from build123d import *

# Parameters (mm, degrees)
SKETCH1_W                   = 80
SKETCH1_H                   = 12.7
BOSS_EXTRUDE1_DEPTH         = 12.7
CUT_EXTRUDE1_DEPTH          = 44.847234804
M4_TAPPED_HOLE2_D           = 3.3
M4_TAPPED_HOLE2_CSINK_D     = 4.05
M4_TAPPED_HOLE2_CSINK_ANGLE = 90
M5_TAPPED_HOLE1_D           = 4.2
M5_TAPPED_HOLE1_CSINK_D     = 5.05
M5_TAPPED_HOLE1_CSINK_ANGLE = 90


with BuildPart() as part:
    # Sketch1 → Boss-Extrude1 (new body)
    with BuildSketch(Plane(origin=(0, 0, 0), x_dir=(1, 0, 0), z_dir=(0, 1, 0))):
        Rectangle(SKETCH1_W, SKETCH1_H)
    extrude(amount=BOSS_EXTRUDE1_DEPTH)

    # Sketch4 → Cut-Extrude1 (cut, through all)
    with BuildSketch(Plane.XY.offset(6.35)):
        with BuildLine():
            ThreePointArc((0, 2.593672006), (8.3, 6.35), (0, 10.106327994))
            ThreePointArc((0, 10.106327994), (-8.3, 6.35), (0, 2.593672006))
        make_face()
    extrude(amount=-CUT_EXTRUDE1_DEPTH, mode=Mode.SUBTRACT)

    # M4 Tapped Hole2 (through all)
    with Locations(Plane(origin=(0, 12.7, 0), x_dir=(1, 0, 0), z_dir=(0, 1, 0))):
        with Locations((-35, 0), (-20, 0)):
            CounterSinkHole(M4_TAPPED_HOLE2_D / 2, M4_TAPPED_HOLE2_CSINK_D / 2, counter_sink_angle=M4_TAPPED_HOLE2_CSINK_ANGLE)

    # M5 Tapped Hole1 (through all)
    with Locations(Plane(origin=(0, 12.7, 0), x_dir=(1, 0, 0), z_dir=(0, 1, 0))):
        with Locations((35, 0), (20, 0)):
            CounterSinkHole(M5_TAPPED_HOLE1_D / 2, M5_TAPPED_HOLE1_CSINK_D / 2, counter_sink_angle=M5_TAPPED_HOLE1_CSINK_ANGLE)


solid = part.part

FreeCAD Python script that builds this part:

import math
import FreeCAD as App
import Part
import Sketcher

V = App.Vector

doc = App.newDocument("Part")
body = doc.addObject("PartDesign::Body", "Body")

# Sketch on XZ plane
sketch1 = body.newObject("Sketcher::SketchObject", "Sketch")
sketch1.AttachmentSupport = (doc.getObject("XZ_Plane"), [""])
sketch1.MapMode = "FlatFace"
sketch1.addGeometry(Part.LineSegment(V(-40, -6, 0), V(-40, 6, 0)), False)
sketch1.addGeometry(Part.LineSegment(V(-40, 6, 0), V(40, 6, 0)), False)
sketch1.addGeometry(Part.LineSegment(V(40, 6, 0), V(40, -6, 0)), False)
sketch1.addGeometry(Part.LineSegment(V(40, -6, 0), V(-40, -6, 0)), False)
sketch1.addConstraint(Sketcher.Constraint("Coincident", 0, 2, 1, 1))
sketch1.addConstraint(Sketcher.Constraint("Coincident", 1, 2, 2, 1))
sketch1.addConstraint(Sketcher.Constraint("Coincident", 2, 2, 3, 1))
sketch1.addConstraint(Sketcher.Constraint("Coincident", 3, 2, 0, 1))
sketch1.addConstraint(Sketcher.Constraint("Vertical", 0))
sketch1.addConstraint(Sketcher.Constraint("Horizontal", 1))
sketch1.addConstraint(Sketcher.Constraint("Vertical", 2))
sketch1.addConstraint(Sketcher.Constraint("Horizontal", 3))
sketch1.addConstraint(Sketcher.Constraint("Symmetric", 0, 2, 2, 2, -1, 1))
sketch1.addConstraint(Sketcher.Constraint("DistanceX", 1, 1, 1, 2, 80.0))
sketch1.addConstraint(Sketcher.Constraint("DistanceY", 0, 1, 0, 2, 12.7))
pad1 = body.newObject("PartDesign::Pad", "Pad")
pad1.Profile = sketch1
pad1.Length = 12.7
pad1.Reversed = True

# Sketch on XY plane
sketch2 = body.newObject("Sketcher::SketchObject", "Sketch001")
sketch2.AttachmentSupport = (doc.getObject("XY_Plane"), [""])
sketch2.MapMode = "FlatFace"
sketch2.AttachmentOffset = App.Placement(V(0, 0, 6.35), App.Rotation())
sketch2.addGeometry(Part.ArcOfCircle(Part.Circle(V(3, 6, 0), V(0, 0, 1), 5), math.radians(-131), math.radians(131)), False)
sketch2.addGeometry(Part.ArcOfCircle(Part.Circle(V(-3, 6, 0), V(0, 0, 1), 5), math.radians(49), math.radians(311)), False)
sketch2.addConstraint(Sketcher.Constraint("Coincident", 0, 1, 1, 2))
sketch2.addConstraint(Sketcher.Constraint("Coincident", 1, 1, 0, 2))
sketch2.addConstraint(Sketcher.Constraint("Equal", 0, 1))
sketch2.addConstraint(Sketcher.Constraint("Symmetric", 0, 3, 1, 3, -2))
sketch2.addConstraint(Sketcher.Constraint("Radius", 0, 5.0))
sketch2.addConstraint(Sketcher.Constraint("DistanceX", -1, 1, 0, 3, 3.3))
sketch2.addConstraint(Sketcher.Constraint("DistanceY", -1, 1, 0, 3, 6.35))
pocket1 = body.newObject("PartDesign::Pocket", "Pocket")
pocket1.Profile = sketch2
pocket1.Type = "ThroughAll"

# Sketch on XZ plane
sketch3 = body.newObject("Sketcher::SketchObject", "Sketch002")
sketch3.AttachmentSupport = (doc.getObject("XZ_Plane"), [""])
sketch3.MapMode = "FlatFace"
sketch3.AttachmentOffset = App.Placement(V(0, 0, -12.7), App.Rotation())
sketch3.addGeometry(Part.Circle(V(-35, 0, 0), V(0, 0, 1), 1.6), False)
sketch3.addGeometry(Part.Circle(V(-20, 0, 0), V(0, 0, 1), 1.6), False)
sketch3.addConstraint(Sketcher.Constraint("Equal", 0, 1))
sketch3.addConstraint(Sketcher.Constraint("PointOnObject", 0, 3, -1))
sketch3.addConstraint(Sketcher.Constraint("PointOnObject", 1, 3, -1))
sketch3.addConstraint(Sketcher.Constraint("Diameter", 0, 3.3))
sketch3.addConstraint(Sketcher.Constraint("DistanceX", 0, 3, -1, 1, 35.0))
sketch3.addConstraint(Sketcher.Constraint("DistanceX", 1, 3, -1, 1, 20.0))
doc.recompute()
hole = body.newObject("PartDesign::Hole", "Hole")
hole.Profile = sketch3
hole.ThreadType = "None"
hole.Diameter = 3.3
hole.DepthType = "ThroughAll"
hole.HoleCutType = "Countersink"
hole.HoleCutDiameter = 4.05
hole.HoleCutCountersinkAngle = 90
hole.Reversed = True

# Sketch on XZ plane
sketch4 = body.newObject("Sketcher::SketchObject", "Sketch003")
sketch4.AttachmentSupport = (doc.getObject("XZ_Plane"), [""])
sketch4.MapMode = "FlatFace"
sketch4.AttachmentOffset = App.Placement(V(0, 0, -12.7), App.Rotation())
sketch4.addGeometry(Part.Circle(V(35, 0, 0), V(0, 0, 1), 2.1), False)
sketch4.addGeometry(Part.Circle(V(20, 0, 0), V(0, 0, 1), 2.1), False)
sketch4.addConstraint(Sketcher.Constraint("Equal", 0, 1))
sketch4.addConstraint(Sketcher.Constraint("PointOnObject", 0, 3, -1))
sketch4.addConstraint(Sketcher.Constraint("PointOnObject", 1, 3, -1))
sketch4.addConstraint(Sketcher.Constraint("Diameter", 0, 4.2))
sketch4.addConstraint(Sketcher.Constraint("DistanceX", -1, 1, 0, 3, 35.0))
sketch4.addConstraint(Sketcher.Constraint("DistanceX", -1, 1, 1, 3, 20.0))
doc.recompute()
hole2 = body.newObject("PartDesign::Hole", "Hole001")
hole2.Profile = sketch4
hole2.ThreadType = "None"
hole2.Diameter = 4.2
hole2.DepthType = "ThroughAll"
hole2.HoleCutType = "Countersink"
hole2.HoleCutDiameter = 5.05
hole2.HoleCutCountersinkAngle = 90
hole2.Reversed = True

doc.recompute()
